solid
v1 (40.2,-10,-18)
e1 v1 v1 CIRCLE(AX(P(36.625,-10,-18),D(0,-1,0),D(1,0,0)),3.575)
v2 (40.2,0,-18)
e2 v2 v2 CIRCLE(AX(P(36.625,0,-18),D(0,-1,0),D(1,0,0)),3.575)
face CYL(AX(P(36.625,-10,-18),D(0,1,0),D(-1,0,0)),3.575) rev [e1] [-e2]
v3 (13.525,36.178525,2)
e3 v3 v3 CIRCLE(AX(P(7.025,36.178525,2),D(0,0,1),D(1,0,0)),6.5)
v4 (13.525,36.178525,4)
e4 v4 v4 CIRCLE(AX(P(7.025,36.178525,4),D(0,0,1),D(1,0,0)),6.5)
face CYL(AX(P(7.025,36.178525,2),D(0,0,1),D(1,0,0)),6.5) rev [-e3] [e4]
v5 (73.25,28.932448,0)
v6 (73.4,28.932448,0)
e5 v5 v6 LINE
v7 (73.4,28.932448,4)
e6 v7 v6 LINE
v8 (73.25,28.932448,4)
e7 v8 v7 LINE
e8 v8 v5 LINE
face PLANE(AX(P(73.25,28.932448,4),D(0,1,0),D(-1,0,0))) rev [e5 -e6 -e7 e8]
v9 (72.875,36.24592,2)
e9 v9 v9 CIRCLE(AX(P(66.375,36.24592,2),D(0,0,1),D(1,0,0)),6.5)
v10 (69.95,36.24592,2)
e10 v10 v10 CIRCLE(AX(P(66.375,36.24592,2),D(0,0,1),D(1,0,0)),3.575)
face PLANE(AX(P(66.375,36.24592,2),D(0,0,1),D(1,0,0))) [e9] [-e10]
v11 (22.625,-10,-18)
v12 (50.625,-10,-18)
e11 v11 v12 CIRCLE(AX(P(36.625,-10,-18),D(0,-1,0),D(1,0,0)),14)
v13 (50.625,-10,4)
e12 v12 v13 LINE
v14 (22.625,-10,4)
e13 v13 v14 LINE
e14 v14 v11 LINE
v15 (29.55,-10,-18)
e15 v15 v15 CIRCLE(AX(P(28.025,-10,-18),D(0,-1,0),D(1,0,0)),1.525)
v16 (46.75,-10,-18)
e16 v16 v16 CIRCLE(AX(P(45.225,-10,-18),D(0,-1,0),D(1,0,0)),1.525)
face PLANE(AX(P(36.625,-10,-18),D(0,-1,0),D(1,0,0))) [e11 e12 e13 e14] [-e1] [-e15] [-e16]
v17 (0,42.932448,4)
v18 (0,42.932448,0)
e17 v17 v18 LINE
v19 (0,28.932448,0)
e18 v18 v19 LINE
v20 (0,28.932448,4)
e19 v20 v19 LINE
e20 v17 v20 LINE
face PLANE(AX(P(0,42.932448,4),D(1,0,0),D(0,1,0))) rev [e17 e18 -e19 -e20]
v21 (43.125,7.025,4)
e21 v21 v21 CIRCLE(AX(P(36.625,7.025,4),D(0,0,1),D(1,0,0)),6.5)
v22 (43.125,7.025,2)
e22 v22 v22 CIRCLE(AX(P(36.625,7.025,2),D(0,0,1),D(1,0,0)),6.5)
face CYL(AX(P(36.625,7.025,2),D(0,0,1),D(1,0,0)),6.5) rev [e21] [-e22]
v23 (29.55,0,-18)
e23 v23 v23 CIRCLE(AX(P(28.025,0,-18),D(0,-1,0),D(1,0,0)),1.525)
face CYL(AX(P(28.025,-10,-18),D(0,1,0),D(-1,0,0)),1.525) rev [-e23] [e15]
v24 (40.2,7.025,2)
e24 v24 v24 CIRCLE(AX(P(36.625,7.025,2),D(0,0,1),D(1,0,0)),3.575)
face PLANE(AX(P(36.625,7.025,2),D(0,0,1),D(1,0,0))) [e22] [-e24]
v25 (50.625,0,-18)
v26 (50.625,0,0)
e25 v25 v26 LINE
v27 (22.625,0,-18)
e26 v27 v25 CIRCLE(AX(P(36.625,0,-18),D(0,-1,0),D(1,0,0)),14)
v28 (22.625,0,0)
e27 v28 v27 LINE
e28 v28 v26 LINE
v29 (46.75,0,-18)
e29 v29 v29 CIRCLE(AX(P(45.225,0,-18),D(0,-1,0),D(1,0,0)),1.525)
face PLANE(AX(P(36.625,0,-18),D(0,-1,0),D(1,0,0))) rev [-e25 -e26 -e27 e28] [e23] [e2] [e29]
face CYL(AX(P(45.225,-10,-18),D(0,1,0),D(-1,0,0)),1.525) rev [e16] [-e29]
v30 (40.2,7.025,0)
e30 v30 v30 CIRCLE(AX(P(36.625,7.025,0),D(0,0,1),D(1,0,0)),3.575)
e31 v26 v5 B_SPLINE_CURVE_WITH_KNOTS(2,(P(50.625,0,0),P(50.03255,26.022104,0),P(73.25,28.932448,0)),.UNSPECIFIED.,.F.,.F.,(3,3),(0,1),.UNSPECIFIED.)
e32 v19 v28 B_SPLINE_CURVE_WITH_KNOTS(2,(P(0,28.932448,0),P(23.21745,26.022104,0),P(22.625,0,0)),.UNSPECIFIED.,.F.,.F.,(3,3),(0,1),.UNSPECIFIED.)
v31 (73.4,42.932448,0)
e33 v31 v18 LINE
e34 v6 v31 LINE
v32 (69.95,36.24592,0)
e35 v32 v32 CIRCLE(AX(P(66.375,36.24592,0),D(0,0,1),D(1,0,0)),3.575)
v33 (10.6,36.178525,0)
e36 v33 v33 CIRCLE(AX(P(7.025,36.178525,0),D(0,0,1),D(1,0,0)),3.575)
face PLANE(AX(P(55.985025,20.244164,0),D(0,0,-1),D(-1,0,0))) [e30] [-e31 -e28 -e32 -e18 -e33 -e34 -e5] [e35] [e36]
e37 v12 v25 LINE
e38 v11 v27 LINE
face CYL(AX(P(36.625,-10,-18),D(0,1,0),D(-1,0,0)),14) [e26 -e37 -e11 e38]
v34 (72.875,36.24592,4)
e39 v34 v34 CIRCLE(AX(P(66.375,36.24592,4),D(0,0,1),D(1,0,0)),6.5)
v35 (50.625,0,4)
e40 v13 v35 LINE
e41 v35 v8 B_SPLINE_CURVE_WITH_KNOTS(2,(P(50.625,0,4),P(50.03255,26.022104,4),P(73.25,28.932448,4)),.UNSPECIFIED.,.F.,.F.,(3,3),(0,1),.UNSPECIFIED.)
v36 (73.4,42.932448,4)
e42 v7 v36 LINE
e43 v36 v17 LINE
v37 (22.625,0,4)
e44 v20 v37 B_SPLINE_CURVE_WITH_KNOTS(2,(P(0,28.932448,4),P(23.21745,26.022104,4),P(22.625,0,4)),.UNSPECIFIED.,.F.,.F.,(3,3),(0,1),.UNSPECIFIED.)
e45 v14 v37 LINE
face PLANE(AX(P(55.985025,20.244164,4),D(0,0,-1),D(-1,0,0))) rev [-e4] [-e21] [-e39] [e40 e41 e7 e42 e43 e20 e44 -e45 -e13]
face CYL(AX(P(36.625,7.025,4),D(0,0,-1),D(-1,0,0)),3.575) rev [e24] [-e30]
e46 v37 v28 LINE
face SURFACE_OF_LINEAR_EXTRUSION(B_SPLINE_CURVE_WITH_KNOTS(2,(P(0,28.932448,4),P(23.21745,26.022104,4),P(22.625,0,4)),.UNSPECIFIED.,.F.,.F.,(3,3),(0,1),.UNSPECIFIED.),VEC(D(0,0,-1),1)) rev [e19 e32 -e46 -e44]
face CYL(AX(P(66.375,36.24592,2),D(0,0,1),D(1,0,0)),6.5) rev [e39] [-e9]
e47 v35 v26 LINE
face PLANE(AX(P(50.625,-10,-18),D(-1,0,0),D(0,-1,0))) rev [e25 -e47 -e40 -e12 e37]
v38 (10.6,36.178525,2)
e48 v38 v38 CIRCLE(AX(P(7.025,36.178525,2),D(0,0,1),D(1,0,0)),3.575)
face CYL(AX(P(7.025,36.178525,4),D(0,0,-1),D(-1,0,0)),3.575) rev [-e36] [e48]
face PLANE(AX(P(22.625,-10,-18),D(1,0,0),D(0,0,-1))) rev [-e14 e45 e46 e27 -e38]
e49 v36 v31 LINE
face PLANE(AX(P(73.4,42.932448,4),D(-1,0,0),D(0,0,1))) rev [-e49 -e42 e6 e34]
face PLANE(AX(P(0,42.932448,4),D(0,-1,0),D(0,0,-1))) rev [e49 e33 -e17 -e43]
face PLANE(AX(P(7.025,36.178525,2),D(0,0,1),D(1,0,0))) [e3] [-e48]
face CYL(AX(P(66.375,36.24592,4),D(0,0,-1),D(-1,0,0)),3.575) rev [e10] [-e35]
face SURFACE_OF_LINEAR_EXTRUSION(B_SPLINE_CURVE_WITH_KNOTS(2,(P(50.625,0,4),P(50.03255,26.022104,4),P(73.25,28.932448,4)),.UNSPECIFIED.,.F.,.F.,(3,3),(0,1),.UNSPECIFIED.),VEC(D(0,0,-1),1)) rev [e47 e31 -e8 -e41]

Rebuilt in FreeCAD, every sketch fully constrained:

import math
import FreeCAD as App
import Part
import Sketcher

V = App.Vector

doc = App.newDocument("Part")
body = doc.addObject("PartDesign::Body", "Body")

sketch1 = body.newObject("Sketcher::SketchObject", "Sketch")
sketch1.AttachmentSupport = (doc.getObject("XY_Plane"), [""])
sketch1.MapMode = "FlatFace"
sketch1.addGeometry(Part.LineSegment(V(0, 42.932448, 0), V(0, 28.932448, 0)), False)
sketch1.addGeometry(Part.BSplineCurve([V(0, 28.932448, 0), V(23.21745, 26.022104, 0), V(22.625, 0, 0)], [3, 3], [0, 1], False, 2, [1, 1, 1], False), False)
sketch1.addGeometry(Part.LineSegment(V(22.625, 0, 0), V(50.625, 0, 0)), False)
sketch1.addGeometry(Part.BSplineCurve([V(73.25, 28.932448, 0), V(50.03255, 26.022104, 0), V(50.625, 0, 0)], [3, 3], [0, 1], False, 2, [1, 1, 1], False), False)
sketch1.addGeometry(Part.LineSegment(V(73.25, 28.932448, 0), V(73.4, 28.932448, 0)), False)
sketch1.addGeometry(Part.LineSegment(V(73.4, 28.932448, 0), V(73.4, 42.932448, 0)), False)
sketch1.addGeometry(Part.LineSegment(V(73.4, 42.932448, 0), V(0, 42.932448, 0)), False)
sketch1.addGeometry(Part.Circle(V(36.625, 7.025, 0), V(0, 0, 1), 3.575), False)
sketch1.addGeometry(Part.Circle(V(7.025, 36.178525, 0), V(0, 0, 1), 3.575), False)
sketch1.addGeometry(Part.Circle(V(66.375, 36.24592, 0), V(0, 0, 1), 3.575), False)
sketch1.addConstraint(Sketcher.Constraint("Block", 1))
sketch1.addConstraint(Sketcher.Constraint("Block", 3))
sketch1.addConstraint(Sketcher.Constraint("Coincident", 0, 2, 1, 1))
sketch1.addConstraint(Sketcher.Constraint("Coincident", 1, 2, 2, 1))
sketch1.addConstraint(Sketcher.Constraint("Coincident", 2, 2, 3, 2))
sketch1.addConstraint(Sketcher.Constraint("Coincident", 3, 1, 4, 1))
sketch1.addConstraint(Sketcher.Constraint("Coincident", 4, 2, 5, 1))
sketch1.addConstraint(Sketcher.Constraint("Coincident", 5, 2, 6, 1))
sketch1.addConstraint(Sketcher.Constraint("Coincident", 6, 2, 0, 1))
sketch1.addConstraint(Sketcher.Constraint("Vertical", 0))
sketch1.addConstraint(Sketcher.Constraint("Horizontal", 4))
sketch1.addConstraint(Sketcher.Constraint("Vertical", 5))
sketch1.addConstraint(Sketcher.Constraint("Horizontal", 6))
sketch1.addConstraint(Sketcher.Constraint("Equal", 7, 8))
sketch1.addConstraint(Sketcher.Constraint("Equal", 8, 9))
sketch1.addConstraint(Sketcher.Constraint("Diameter", 7, 7.15))
sketch1.addConstraint(Sketcher.Constraint("DistanceY", 0, 2, 0, 1, 14.0))
sketch1.addConstraint(Sketcher.Constraint("DistanceX", 6, 2, 6, 1, 73.4))
sketch1.addConstraint(Sketcher.Constraint("DistanceX", 7, 3, 2, 2, 14.0))
sketch1.addConstraint(Sketcher.Constraint("DistanceX", 8, 3, 7, 3, 29.6))
sketch1.addConstraint(Sketcher.Constraint("DistanceX", 7, 3, 9, 3, 29.75))
sketch1.addConstraint(Sketcher.Constraint("DistanceY", -1, 1, 7, 3, 7.025))
sketch1.addConstraint(Sketcher.Constraint("DistanceY", -1, 1, 9, 3, 36.24592))
sketch1.addConstraint(Sketcher.Constraint("DistanceY", -1, 1, 8, 3, 36.178525))
pad1 = body.newObject("PartDesign::Pad", "Pad")
pad1.Profile = sketch1
pad1.Length = 4

sketch2 = body.newObject("Sketcher::SketchObject", "Sketch001")
sketch2.AttachmentSupport = (doc.getObject("XY_Plane"), [""])
sketch2.MapMode = "FlatFace"
sketch2.AttachmentOffset = App.Placement(V(0, 0, 4), App.Rotation())
sketch2.addGeometry(Part.Circle(V(7.025, 36.178525, 0), V(0, 0, 1), 6.5), False)
sketch2.addGeometry(Part.Circle(V(66.375, 36.24592, 0), V(0, 0, 1), 6.5), False)
sketch2.addGeometry(Part.Circle(V(36.625, 7.025, 0), V(0, 0, 1), 6.5), False)
sketch2.addConstraint(Sketcher.Constraint("Equal", 0, 1))
sketch2.addConstraint(Sketcher.Constraint("Equal", 1, 2))
sketch2.addConstraint(Sketcher.Constraint("Diameter", 0, 13.0))
sketch2.addConstraint(Sketcher.Constraint("DistanceX", 0, 3, 2, 3, 29.6))
sketch2.addConstraint(Sketcher.Constraint("DistanceX", 0, 3, 1, 3, 59.35))
sketch2.addConstraint(Sketcher.Constraint("DistanceX", -1, 1, 0, 3, 7.025))
sketch2.addConstraint(Sketcher.Constraint("DistanceY", -1, 1, 2, 3, 7.025))
sketch2.addConstraint(Sketcher.Constraint("DistanceY", -1, 1, 1, 3, 36.24592))
sketch2.addConstraint(Sketcher.Constraint("DistanceY", -1, 1, 0, 3, 36.178525))
pocket1 = body.newObject("PartDesign::Pocket", "Pocket")
pocket1.Profile = sketch2
pocket1.Length = 2

sketch3 = body.newObject("Sketcher::SketchObject", "Sketch002")
sketch3.AttachmentSupport = (doc.getObject("XZ_Plane"), [""])
sketch3.MapMode = "FlatFace"
sketch3.addGeometry(Part.LineSegment(V(22.625, 4, 0), V(22.625, -18, 0)), False)
sketch3.addGeometry(Part.ArcOfCircle(Part.Circle(V(36.625, -18, 0), V(0, 0, 1), 14), math.radians(180), math.radians(360)), False)
sketch3.addGeometry(Part.LineSegment(V(50.625, -18, 0), V(50.625, 4, 0)), False)
sketch3.addGeometry(Part.LineSegment(V(50.625, 4, 0), V(22.625, 4, 0)), False)
sketch3.addGeometry(Part.Circle(V(45.225, -18, 0), V(0, 0, 1), 1.525), False)
sketch3.addGeometry(Part.Circle(V(36.625, -18, 0), V(0, 0, 1), 3.575), False)
sketch3.addGeometry(Part.Circle(V(28.025, -18, 0), V(0, 0, 1), 1.525), False)
sketch3.addConstraint(Sketcher.Constraint("Tangent", 0, 2, 1, 1))
sketch3.addConstraint(Sketcher.Constraint("Tangent", 1, 2, 2, 1))
sketch3.addConstraint(Sketcher.Constraint("Coincident", 2, 2, 3, 1))
sketch3.addConstraint(Sketcher.Constraint("Coincident", 3, 2, 0, 1))
sketch3.addConstraint(Sketcher.Constraint("Vertical", 0))
sketch3.addConstraint(Sketcher.Constraint("Vertical", 2))
sketch3.addConstraint(Sketcher.Constraint("Horizontal", 3))
sketch3.addConstraint(Sketcher.Constraint("Coincident", 5, 3, 1, 3))
sketch3.addConstraint(Sketcher.Constraint("Equal", 4, 6))
sketch3.addConstraint(Sketcher.Constraint("Horizontal", 1, 3, 4, 3))
sketch3.addConstraint(Sketcher.Constraint("Horizontal", 5, 3, 6, 3))
sketch3.addConstraint(Sketcher.Constraint("Radius", 1, 14.0))
sketch3.addConstraint(Sketcher.Constraint("Diameter", 4, 3.05))
sketch3.addConstraint(Sketcher.Constraint("Diameter", 5, 7.15))
sketch3.addConstraint(Sketcher.Constraint("DistanceY", 0, 2, 0, 1, 22.0))
sketch3.addConstraint(Sketcher.Constraint("DistanceY", 1, 3, -1, 1, 18.0))
sketch3.addConstraint(Sketcher.Constraint("DistanceX", 1, 3, 4, 3, 8.6))
sketch3.addConstraint(Sketcher.Constraint("DistanceX", 6, 3, 1, 3, 8.6))
sketch3.addConstraint(Sketcher.Constraint("DistanceX", -1, 1, 1, 3, 36.625))
pad2 = body.newObject("PartDesign::Pad", "Pad001")
pad2.Profile = sketch3
pad2.Length = 10

doc.recompute()
